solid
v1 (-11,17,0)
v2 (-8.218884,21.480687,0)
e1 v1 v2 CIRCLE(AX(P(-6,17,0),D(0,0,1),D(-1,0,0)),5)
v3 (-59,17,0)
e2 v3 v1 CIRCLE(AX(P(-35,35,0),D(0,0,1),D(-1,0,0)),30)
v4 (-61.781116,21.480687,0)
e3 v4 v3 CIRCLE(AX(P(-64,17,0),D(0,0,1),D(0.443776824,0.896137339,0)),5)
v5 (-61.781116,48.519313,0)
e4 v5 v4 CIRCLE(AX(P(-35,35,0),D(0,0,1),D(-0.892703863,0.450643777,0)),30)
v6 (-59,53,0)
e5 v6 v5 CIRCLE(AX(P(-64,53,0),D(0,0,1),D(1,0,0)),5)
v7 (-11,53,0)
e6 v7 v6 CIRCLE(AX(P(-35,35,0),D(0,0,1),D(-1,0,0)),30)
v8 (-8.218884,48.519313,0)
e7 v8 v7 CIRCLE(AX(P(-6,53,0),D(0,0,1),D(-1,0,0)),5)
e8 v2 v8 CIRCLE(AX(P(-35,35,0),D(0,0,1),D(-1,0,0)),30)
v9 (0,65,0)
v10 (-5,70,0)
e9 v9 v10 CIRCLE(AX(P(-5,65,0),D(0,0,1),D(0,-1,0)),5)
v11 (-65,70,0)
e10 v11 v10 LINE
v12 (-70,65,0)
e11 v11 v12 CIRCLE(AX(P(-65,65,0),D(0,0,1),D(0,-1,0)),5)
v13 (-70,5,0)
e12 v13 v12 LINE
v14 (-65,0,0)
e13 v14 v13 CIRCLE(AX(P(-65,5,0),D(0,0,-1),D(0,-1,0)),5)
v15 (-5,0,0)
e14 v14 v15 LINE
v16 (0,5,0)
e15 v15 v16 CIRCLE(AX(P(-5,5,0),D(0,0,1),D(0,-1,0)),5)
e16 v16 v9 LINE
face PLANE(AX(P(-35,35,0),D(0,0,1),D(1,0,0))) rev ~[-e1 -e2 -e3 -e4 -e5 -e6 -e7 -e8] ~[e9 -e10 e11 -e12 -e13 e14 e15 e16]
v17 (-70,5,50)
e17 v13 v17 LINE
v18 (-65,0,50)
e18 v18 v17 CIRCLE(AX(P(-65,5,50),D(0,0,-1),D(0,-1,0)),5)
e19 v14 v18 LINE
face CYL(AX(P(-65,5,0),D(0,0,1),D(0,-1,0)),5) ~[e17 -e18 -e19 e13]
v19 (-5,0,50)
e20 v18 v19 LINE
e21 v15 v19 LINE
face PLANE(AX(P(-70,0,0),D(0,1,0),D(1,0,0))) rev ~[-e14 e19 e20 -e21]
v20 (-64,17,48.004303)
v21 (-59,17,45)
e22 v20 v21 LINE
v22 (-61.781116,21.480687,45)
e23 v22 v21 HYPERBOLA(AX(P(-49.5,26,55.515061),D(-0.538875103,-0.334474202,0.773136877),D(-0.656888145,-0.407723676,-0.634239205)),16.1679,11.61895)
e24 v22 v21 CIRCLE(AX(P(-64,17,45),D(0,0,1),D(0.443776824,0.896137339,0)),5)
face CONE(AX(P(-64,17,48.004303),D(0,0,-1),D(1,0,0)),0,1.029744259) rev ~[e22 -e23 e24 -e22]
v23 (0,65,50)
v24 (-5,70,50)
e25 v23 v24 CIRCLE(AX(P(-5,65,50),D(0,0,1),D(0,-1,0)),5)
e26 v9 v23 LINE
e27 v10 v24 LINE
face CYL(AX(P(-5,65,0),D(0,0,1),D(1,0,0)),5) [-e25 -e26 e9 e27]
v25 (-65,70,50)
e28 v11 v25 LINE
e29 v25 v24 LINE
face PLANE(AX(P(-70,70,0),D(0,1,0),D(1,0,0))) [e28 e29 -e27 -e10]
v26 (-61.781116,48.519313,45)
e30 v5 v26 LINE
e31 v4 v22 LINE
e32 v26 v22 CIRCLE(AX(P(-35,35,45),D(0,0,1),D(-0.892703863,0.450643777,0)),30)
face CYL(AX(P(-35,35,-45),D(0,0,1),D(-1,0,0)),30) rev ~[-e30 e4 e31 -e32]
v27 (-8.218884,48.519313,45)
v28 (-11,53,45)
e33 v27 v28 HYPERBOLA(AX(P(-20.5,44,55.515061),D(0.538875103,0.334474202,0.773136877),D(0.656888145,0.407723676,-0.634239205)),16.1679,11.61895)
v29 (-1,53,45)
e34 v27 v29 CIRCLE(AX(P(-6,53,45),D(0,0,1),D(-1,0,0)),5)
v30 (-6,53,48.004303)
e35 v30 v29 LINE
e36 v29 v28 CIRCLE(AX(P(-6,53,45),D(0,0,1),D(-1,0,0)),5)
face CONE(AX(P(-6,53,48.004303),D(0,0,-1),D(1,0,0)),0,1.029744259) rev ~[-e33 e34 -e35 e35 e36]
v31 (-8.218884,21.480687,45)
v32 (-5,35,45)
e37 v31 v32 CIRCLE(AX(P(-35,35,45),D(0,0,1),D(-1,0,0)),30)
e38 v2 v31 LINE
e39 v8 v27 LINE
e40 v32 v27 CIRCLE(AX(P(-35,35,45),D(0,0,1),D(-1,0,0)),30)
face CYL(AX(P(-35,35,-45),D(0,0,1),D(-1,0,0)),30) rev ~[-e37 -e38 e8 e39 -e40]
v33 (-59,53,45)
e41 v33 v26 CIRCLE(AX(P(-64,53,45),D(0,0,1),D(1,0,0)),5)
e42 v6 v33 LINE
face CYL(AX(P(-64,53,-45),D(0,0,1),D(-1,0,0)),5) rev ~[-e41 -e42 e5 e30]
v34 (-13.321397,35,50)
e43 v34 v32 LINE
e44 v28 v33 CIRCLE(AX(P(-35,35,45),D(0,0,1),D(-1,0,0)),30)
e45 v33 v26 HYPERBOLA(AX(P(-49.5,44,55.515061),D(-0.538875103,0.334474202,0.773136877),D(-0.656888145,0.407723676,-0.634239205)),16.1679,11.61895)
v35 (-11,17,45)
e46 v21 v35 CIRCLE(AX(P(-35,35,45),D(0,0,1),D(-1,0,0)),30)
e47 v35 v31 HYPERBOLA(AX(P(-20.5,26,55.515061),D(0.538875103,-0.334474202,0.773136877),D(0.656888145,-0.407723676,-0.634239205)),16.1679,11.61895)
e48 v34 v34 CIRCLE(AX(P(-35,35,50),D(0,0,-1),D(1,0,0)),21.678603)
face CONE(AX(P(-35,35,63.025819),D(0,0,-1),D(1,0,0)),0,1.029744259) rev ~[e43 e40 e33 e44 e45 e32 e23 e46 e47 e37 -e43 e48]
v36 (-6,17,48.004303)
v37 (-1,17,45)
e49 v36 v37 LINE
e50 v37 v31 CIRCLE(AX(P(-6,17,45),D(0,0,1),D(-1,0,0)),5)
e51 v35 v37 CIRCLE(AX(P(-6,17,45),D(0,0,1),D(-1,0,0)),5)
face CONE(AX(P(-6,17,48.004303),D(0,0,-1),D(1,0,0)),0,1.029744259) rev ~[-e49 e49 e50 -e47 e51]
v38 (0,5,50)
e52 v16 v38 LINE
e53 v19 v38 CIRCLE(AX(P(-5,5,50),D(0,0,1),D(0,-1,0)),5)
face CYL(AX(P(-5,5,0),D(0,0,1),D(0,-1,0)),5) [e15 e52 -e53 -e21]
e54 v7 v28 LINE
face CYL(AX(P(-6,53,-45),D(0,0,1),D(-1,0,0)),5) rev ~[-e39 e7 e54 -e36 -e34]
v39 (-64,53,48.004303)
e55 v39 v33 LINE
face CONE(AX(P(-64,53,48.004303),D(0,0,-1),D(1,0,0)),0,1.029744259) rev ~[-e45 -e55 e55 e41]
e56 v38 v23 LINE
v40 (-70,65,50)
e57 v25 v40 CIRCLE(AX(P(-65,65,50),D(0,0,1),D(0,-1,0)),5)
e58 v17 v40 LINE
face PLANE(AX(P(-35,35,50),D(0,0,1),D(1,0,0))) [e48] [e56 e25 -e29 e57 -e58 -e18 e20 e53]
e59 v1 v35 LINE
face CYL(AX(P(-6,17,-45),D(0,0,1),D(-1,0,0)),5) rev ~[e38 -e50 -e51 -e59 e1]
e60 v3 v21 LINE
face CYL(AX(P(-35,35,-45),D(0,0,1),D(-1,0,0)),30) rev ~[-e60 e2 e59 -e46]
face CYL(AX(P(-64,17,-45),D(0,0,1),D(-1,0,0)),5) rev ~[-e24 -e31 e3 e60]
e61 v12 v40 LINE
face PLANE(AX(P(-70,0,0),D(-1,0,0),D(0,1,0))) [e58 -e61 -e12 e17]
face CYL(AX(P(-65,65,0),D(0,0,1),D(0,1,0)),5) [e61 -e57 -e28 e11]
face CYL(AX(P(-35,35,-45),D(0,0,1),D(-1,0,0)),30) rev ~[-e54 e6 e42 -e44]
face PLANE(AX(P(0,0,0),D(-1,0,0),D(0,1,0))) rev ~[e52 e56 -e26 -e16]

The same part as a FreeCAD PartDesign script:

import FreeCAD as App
import Part
import Sketcher


def edges_at(feature, points):
    """Names of the edges that pass closest to the given points."""
    edges = feature.Shape.Edges
    near = lambda p: min(range(len(edges)), key=lambda i: edges[i].distToShape(Part.Vertex(*p))[0])
    return sorted({f"Edge{near(p) + 1}" for p in points})

doc = App.newDocument("Part")
body = doc.addObject("PartDesign::Body", "Body")

# Sketch on XY plane
sketch1 = doc.addObject("Sketcher::SketchObject", "Sketch")
body.addObject(sketch1)
sketch1.AttachmentSupport = (doc.XY_Plane, [""])
sketch1.MapMode = "FlatFace"
sketch1.addGeometry(Part.LineSegment(App.Vector(-70, 70, 0), App.Vector(-70, 0, 0)), False)
sketch1.addGeometry(Part.LineSegment(App.Vector(-70, 0, 0), App.Vector(0, 0, 0)), False)
sketch1.addGeometry(Part.LineSegment(App.Vector(0, 0, 0), App.Vector(0, 70, 0)), False)
sketch1.addGeometry(Part.LineSegment(App.Vector(0, 70, 0), App.Vector(-70, 70, 0)), False)
sketch1.addGeometry(Part.Circle(App.Vector(-35, 35, 0), App.Vector(0, 0, 1), 20), False)
sketch1.addConstraint(Sketcher.Constraint("Coincident", 0, 2, 1, 1))
sketch1.addConstraint(Sketcher.Constraint("Coincident", 1, 2, 2, 1))
sketch1.addConstraint(Sketcher.Constraint("Coincident", 2, 2, 3, 1))
sketch1.addConstraint(Sketcher.Constraint("Coincident", 3, 2, 0, 1))
sketch1.addConstraint(Sketcher.Constraint("Vertical", 0))
sketch1.addConstraint(Sketcher.Constraint("Horizontal", 1))
sketch1.addConstraint(Sketcher.Constraint("Vertical", 2))
sketch1.addConstraint(Sketcher.Constraint("Horizontal", 3))
sketch1.addConstraint(Sketcher.Constraint("Coincident", 1, 2, -1, 1))
sketch1.addConstraint(Sketcher.Constraint("Equal", 3, 0))
sketch1.addConstraint(Sketcher.Constraint("Diameter", 4, 40.0))
sketch1.addConstraint(Sketcher.Constraint("DistanceX", 1, 1, 1, 2, 70.0))
sketch1.addConstraint(Sketcher.Constraint("DistanceX", 4, 3, -1, 1, 35.0))
sketch1.addConstraint(Sketcher.Constraint("DistanceY", -1, 1, 4, 3, 35.0))
pad1 = doc.addObject("PartDesign::Pad", "Pad")
body.addObject(pad1)
pad1.Profile = sketch1
pad1.Length = 50

# Sketch on XY plane
sketch2 = doc.addObject("Sketcher::SketchObject", "Sketch001")
body.addObject(sketch2)
sketch2.AttachmentSupport = (doc.XY_Plane, [""])
sketch2.MapMode = "FlatFace"
sketch2.addGeometry(Part.Circle(App.Vector(-64, 17, 0), App.Vector(0, 0, 1), 5), False)
sketch2.addConstraint(Sketcher.Constraint("Diameter", 0, 10.0))
sketch2.addConstraint(Sketcher.Constraint("DistanceX", 0, 3, -1, 1, 64.0))
sketch2.addConstraint(Sketcher.Constraint("DistanceY", -1, 1, 0, 3, 17.0))
doc.recompute()
hole = doc.addObject("PartDesign::Hole", "Hole")
body.addObject(hole)
hole.Profile = sketch2
hole.ThreadType = "None"
hole.Diameter = 10
hole.DepthType = "Dimension"
hole.Depth = 45
hole.DrillPoint = "Angled"
hole.DrillPointAngle = 118
hole.Reversed = True

# Sketch on XY plane
sketch3 = doc.addObject("Sketcher::SketchObject", "Sketch002")
body.addObject(sketch3)
sketch3.AttachmentSupport = (doc.XY_Plane, [""])
sketch3.MapMode = "FlatFace"
sketch3.addGeometry(Part.Circle(App.Vector(-6, 53, 0), App.Vector(0, 0, 1), 5), False)
sketch3.addGeometry(Part.Circle(App.Vector(-6, 17, 0), App.Vector(0, 0, 1), 5), False)
sketch3.addGeometry(Part.Circle(App.Vector(-64, 53, 0), App.Vector(0, 0, 1), 5), False)
sketch3.addConstraint(Sketcher.Constraint("Equal", 0, 1))
sketch3.addConstraint(Sketcher.Constraint("Equal", 1, 2))
sketch3.addConstraint(Sketcher.Constraint("Horizontal", 0, 3, 2, 3))
sketch3.addConstraint(Sketcher.Constraint("Vertical", 0, 3, 1, 3))
sketch3.addConstraint(Sketcher.Constraint("Diameter", 0, 10.0))
sketch3.addConstraint(Sketcher.Constraint("DistanceX", 0, 3, -1, 1, 6.0))
sketch3.addConstraint(Sketcher.Constraint("DistanceY", -1, 1, 0, 3, 53.0))
sketch3.addConstraint(Sketcher.Constraint("DistanceY", -1, 1, 1, 3, 17.0))
sketch3.addConstraint(Sketcher.Constraint("DistanceX", 2, 3, -1, 1, 64.0))
doc.recompute()
hole2 = doc.addObject("PartDesign::Hole", "Hole001")
body.addObject(hole2)
hole2.Profile = sketch3
hole2.ThreadType = "None"
hole2.Diameter = 10
hole2.DepthType = "Dimension"
hole2.Depth = 45
hole2.DrillPoint = "Angled"
hole2.DrillPointAngle = 118
hole2.Reversed = True
doc.recompute()

fillet = doc.addObject("PartDesign::Fillet", "Fillet")
body.addObject(fillet)
fillet.Base = (hole2, edges_at(hole2, [(0, 0, 25)]))
fillet.Radius = 5
doc.recompute()

fillet2 = doc.addObject("PartDesign::Fillet", "Fillet001")
body.addObject(fillet2)
fillet2.Base = (fillet, edges_at(fillet, [(-70, 0, 25)]))
fillet2.Radius = 5
doc.recompute()

fillet3 = doc.addObject("PartDesign::Fillet", "Fillet002")
body.addObject(fillet3)
fillet3.Base = (fillet2, edges_at(fillet2, [(0, 70, 25)]))
fillet3.Radius = 5
doc.recompute()

fillet4 = doc.addObject("PartDesign::Fillet", "Fillet003")
body.addObject(fillet4)
fillet4.Base = (fillet3, edges_at(fillet3, [(-70, 70, 25)]))
fillet4.Radius = 5

# Sketch on XY plane
sketch4 = doc.addObject("Sketcher::SketchObject", "Sketch003")
body.addObject(sketch4)
sketch4.AttachmentSupport = (doc.XY_Plane, [""])
sketch4.MapMode = "FlatFace"
sketch4.addGeometry(Part.Circle(App.Vector(-35, 35, 0), App.Vector(0, 0, 1), 30), False)
sketch4.addConstraint(Sketcher.Constraint("Diameter", 0, 60.0))
sketch4.addConstraint(Sketcher.Constraint("DistanceX", 0, 3, -1, 1, 35.0))
sketch4.addConstraint(Sketcher.Constraint("DistanceY", -1, 1, 0, 3, 35.0))
doc.recompute()
hole3 = doc.addObject("PartDesign::Hole", "Hole002")
body.addObject(hole3)
hole3.Profile = sketch4
hole3.ThreadType = "None"
hole3.Diameter = 60
hole3.DepthType = "Dimension"
hole3.Depth = 45
hole3.DrillPoint = "Angled"
hole3.DrillPointAngle = 118
hole3.Reversed = True

doc.recompute()
